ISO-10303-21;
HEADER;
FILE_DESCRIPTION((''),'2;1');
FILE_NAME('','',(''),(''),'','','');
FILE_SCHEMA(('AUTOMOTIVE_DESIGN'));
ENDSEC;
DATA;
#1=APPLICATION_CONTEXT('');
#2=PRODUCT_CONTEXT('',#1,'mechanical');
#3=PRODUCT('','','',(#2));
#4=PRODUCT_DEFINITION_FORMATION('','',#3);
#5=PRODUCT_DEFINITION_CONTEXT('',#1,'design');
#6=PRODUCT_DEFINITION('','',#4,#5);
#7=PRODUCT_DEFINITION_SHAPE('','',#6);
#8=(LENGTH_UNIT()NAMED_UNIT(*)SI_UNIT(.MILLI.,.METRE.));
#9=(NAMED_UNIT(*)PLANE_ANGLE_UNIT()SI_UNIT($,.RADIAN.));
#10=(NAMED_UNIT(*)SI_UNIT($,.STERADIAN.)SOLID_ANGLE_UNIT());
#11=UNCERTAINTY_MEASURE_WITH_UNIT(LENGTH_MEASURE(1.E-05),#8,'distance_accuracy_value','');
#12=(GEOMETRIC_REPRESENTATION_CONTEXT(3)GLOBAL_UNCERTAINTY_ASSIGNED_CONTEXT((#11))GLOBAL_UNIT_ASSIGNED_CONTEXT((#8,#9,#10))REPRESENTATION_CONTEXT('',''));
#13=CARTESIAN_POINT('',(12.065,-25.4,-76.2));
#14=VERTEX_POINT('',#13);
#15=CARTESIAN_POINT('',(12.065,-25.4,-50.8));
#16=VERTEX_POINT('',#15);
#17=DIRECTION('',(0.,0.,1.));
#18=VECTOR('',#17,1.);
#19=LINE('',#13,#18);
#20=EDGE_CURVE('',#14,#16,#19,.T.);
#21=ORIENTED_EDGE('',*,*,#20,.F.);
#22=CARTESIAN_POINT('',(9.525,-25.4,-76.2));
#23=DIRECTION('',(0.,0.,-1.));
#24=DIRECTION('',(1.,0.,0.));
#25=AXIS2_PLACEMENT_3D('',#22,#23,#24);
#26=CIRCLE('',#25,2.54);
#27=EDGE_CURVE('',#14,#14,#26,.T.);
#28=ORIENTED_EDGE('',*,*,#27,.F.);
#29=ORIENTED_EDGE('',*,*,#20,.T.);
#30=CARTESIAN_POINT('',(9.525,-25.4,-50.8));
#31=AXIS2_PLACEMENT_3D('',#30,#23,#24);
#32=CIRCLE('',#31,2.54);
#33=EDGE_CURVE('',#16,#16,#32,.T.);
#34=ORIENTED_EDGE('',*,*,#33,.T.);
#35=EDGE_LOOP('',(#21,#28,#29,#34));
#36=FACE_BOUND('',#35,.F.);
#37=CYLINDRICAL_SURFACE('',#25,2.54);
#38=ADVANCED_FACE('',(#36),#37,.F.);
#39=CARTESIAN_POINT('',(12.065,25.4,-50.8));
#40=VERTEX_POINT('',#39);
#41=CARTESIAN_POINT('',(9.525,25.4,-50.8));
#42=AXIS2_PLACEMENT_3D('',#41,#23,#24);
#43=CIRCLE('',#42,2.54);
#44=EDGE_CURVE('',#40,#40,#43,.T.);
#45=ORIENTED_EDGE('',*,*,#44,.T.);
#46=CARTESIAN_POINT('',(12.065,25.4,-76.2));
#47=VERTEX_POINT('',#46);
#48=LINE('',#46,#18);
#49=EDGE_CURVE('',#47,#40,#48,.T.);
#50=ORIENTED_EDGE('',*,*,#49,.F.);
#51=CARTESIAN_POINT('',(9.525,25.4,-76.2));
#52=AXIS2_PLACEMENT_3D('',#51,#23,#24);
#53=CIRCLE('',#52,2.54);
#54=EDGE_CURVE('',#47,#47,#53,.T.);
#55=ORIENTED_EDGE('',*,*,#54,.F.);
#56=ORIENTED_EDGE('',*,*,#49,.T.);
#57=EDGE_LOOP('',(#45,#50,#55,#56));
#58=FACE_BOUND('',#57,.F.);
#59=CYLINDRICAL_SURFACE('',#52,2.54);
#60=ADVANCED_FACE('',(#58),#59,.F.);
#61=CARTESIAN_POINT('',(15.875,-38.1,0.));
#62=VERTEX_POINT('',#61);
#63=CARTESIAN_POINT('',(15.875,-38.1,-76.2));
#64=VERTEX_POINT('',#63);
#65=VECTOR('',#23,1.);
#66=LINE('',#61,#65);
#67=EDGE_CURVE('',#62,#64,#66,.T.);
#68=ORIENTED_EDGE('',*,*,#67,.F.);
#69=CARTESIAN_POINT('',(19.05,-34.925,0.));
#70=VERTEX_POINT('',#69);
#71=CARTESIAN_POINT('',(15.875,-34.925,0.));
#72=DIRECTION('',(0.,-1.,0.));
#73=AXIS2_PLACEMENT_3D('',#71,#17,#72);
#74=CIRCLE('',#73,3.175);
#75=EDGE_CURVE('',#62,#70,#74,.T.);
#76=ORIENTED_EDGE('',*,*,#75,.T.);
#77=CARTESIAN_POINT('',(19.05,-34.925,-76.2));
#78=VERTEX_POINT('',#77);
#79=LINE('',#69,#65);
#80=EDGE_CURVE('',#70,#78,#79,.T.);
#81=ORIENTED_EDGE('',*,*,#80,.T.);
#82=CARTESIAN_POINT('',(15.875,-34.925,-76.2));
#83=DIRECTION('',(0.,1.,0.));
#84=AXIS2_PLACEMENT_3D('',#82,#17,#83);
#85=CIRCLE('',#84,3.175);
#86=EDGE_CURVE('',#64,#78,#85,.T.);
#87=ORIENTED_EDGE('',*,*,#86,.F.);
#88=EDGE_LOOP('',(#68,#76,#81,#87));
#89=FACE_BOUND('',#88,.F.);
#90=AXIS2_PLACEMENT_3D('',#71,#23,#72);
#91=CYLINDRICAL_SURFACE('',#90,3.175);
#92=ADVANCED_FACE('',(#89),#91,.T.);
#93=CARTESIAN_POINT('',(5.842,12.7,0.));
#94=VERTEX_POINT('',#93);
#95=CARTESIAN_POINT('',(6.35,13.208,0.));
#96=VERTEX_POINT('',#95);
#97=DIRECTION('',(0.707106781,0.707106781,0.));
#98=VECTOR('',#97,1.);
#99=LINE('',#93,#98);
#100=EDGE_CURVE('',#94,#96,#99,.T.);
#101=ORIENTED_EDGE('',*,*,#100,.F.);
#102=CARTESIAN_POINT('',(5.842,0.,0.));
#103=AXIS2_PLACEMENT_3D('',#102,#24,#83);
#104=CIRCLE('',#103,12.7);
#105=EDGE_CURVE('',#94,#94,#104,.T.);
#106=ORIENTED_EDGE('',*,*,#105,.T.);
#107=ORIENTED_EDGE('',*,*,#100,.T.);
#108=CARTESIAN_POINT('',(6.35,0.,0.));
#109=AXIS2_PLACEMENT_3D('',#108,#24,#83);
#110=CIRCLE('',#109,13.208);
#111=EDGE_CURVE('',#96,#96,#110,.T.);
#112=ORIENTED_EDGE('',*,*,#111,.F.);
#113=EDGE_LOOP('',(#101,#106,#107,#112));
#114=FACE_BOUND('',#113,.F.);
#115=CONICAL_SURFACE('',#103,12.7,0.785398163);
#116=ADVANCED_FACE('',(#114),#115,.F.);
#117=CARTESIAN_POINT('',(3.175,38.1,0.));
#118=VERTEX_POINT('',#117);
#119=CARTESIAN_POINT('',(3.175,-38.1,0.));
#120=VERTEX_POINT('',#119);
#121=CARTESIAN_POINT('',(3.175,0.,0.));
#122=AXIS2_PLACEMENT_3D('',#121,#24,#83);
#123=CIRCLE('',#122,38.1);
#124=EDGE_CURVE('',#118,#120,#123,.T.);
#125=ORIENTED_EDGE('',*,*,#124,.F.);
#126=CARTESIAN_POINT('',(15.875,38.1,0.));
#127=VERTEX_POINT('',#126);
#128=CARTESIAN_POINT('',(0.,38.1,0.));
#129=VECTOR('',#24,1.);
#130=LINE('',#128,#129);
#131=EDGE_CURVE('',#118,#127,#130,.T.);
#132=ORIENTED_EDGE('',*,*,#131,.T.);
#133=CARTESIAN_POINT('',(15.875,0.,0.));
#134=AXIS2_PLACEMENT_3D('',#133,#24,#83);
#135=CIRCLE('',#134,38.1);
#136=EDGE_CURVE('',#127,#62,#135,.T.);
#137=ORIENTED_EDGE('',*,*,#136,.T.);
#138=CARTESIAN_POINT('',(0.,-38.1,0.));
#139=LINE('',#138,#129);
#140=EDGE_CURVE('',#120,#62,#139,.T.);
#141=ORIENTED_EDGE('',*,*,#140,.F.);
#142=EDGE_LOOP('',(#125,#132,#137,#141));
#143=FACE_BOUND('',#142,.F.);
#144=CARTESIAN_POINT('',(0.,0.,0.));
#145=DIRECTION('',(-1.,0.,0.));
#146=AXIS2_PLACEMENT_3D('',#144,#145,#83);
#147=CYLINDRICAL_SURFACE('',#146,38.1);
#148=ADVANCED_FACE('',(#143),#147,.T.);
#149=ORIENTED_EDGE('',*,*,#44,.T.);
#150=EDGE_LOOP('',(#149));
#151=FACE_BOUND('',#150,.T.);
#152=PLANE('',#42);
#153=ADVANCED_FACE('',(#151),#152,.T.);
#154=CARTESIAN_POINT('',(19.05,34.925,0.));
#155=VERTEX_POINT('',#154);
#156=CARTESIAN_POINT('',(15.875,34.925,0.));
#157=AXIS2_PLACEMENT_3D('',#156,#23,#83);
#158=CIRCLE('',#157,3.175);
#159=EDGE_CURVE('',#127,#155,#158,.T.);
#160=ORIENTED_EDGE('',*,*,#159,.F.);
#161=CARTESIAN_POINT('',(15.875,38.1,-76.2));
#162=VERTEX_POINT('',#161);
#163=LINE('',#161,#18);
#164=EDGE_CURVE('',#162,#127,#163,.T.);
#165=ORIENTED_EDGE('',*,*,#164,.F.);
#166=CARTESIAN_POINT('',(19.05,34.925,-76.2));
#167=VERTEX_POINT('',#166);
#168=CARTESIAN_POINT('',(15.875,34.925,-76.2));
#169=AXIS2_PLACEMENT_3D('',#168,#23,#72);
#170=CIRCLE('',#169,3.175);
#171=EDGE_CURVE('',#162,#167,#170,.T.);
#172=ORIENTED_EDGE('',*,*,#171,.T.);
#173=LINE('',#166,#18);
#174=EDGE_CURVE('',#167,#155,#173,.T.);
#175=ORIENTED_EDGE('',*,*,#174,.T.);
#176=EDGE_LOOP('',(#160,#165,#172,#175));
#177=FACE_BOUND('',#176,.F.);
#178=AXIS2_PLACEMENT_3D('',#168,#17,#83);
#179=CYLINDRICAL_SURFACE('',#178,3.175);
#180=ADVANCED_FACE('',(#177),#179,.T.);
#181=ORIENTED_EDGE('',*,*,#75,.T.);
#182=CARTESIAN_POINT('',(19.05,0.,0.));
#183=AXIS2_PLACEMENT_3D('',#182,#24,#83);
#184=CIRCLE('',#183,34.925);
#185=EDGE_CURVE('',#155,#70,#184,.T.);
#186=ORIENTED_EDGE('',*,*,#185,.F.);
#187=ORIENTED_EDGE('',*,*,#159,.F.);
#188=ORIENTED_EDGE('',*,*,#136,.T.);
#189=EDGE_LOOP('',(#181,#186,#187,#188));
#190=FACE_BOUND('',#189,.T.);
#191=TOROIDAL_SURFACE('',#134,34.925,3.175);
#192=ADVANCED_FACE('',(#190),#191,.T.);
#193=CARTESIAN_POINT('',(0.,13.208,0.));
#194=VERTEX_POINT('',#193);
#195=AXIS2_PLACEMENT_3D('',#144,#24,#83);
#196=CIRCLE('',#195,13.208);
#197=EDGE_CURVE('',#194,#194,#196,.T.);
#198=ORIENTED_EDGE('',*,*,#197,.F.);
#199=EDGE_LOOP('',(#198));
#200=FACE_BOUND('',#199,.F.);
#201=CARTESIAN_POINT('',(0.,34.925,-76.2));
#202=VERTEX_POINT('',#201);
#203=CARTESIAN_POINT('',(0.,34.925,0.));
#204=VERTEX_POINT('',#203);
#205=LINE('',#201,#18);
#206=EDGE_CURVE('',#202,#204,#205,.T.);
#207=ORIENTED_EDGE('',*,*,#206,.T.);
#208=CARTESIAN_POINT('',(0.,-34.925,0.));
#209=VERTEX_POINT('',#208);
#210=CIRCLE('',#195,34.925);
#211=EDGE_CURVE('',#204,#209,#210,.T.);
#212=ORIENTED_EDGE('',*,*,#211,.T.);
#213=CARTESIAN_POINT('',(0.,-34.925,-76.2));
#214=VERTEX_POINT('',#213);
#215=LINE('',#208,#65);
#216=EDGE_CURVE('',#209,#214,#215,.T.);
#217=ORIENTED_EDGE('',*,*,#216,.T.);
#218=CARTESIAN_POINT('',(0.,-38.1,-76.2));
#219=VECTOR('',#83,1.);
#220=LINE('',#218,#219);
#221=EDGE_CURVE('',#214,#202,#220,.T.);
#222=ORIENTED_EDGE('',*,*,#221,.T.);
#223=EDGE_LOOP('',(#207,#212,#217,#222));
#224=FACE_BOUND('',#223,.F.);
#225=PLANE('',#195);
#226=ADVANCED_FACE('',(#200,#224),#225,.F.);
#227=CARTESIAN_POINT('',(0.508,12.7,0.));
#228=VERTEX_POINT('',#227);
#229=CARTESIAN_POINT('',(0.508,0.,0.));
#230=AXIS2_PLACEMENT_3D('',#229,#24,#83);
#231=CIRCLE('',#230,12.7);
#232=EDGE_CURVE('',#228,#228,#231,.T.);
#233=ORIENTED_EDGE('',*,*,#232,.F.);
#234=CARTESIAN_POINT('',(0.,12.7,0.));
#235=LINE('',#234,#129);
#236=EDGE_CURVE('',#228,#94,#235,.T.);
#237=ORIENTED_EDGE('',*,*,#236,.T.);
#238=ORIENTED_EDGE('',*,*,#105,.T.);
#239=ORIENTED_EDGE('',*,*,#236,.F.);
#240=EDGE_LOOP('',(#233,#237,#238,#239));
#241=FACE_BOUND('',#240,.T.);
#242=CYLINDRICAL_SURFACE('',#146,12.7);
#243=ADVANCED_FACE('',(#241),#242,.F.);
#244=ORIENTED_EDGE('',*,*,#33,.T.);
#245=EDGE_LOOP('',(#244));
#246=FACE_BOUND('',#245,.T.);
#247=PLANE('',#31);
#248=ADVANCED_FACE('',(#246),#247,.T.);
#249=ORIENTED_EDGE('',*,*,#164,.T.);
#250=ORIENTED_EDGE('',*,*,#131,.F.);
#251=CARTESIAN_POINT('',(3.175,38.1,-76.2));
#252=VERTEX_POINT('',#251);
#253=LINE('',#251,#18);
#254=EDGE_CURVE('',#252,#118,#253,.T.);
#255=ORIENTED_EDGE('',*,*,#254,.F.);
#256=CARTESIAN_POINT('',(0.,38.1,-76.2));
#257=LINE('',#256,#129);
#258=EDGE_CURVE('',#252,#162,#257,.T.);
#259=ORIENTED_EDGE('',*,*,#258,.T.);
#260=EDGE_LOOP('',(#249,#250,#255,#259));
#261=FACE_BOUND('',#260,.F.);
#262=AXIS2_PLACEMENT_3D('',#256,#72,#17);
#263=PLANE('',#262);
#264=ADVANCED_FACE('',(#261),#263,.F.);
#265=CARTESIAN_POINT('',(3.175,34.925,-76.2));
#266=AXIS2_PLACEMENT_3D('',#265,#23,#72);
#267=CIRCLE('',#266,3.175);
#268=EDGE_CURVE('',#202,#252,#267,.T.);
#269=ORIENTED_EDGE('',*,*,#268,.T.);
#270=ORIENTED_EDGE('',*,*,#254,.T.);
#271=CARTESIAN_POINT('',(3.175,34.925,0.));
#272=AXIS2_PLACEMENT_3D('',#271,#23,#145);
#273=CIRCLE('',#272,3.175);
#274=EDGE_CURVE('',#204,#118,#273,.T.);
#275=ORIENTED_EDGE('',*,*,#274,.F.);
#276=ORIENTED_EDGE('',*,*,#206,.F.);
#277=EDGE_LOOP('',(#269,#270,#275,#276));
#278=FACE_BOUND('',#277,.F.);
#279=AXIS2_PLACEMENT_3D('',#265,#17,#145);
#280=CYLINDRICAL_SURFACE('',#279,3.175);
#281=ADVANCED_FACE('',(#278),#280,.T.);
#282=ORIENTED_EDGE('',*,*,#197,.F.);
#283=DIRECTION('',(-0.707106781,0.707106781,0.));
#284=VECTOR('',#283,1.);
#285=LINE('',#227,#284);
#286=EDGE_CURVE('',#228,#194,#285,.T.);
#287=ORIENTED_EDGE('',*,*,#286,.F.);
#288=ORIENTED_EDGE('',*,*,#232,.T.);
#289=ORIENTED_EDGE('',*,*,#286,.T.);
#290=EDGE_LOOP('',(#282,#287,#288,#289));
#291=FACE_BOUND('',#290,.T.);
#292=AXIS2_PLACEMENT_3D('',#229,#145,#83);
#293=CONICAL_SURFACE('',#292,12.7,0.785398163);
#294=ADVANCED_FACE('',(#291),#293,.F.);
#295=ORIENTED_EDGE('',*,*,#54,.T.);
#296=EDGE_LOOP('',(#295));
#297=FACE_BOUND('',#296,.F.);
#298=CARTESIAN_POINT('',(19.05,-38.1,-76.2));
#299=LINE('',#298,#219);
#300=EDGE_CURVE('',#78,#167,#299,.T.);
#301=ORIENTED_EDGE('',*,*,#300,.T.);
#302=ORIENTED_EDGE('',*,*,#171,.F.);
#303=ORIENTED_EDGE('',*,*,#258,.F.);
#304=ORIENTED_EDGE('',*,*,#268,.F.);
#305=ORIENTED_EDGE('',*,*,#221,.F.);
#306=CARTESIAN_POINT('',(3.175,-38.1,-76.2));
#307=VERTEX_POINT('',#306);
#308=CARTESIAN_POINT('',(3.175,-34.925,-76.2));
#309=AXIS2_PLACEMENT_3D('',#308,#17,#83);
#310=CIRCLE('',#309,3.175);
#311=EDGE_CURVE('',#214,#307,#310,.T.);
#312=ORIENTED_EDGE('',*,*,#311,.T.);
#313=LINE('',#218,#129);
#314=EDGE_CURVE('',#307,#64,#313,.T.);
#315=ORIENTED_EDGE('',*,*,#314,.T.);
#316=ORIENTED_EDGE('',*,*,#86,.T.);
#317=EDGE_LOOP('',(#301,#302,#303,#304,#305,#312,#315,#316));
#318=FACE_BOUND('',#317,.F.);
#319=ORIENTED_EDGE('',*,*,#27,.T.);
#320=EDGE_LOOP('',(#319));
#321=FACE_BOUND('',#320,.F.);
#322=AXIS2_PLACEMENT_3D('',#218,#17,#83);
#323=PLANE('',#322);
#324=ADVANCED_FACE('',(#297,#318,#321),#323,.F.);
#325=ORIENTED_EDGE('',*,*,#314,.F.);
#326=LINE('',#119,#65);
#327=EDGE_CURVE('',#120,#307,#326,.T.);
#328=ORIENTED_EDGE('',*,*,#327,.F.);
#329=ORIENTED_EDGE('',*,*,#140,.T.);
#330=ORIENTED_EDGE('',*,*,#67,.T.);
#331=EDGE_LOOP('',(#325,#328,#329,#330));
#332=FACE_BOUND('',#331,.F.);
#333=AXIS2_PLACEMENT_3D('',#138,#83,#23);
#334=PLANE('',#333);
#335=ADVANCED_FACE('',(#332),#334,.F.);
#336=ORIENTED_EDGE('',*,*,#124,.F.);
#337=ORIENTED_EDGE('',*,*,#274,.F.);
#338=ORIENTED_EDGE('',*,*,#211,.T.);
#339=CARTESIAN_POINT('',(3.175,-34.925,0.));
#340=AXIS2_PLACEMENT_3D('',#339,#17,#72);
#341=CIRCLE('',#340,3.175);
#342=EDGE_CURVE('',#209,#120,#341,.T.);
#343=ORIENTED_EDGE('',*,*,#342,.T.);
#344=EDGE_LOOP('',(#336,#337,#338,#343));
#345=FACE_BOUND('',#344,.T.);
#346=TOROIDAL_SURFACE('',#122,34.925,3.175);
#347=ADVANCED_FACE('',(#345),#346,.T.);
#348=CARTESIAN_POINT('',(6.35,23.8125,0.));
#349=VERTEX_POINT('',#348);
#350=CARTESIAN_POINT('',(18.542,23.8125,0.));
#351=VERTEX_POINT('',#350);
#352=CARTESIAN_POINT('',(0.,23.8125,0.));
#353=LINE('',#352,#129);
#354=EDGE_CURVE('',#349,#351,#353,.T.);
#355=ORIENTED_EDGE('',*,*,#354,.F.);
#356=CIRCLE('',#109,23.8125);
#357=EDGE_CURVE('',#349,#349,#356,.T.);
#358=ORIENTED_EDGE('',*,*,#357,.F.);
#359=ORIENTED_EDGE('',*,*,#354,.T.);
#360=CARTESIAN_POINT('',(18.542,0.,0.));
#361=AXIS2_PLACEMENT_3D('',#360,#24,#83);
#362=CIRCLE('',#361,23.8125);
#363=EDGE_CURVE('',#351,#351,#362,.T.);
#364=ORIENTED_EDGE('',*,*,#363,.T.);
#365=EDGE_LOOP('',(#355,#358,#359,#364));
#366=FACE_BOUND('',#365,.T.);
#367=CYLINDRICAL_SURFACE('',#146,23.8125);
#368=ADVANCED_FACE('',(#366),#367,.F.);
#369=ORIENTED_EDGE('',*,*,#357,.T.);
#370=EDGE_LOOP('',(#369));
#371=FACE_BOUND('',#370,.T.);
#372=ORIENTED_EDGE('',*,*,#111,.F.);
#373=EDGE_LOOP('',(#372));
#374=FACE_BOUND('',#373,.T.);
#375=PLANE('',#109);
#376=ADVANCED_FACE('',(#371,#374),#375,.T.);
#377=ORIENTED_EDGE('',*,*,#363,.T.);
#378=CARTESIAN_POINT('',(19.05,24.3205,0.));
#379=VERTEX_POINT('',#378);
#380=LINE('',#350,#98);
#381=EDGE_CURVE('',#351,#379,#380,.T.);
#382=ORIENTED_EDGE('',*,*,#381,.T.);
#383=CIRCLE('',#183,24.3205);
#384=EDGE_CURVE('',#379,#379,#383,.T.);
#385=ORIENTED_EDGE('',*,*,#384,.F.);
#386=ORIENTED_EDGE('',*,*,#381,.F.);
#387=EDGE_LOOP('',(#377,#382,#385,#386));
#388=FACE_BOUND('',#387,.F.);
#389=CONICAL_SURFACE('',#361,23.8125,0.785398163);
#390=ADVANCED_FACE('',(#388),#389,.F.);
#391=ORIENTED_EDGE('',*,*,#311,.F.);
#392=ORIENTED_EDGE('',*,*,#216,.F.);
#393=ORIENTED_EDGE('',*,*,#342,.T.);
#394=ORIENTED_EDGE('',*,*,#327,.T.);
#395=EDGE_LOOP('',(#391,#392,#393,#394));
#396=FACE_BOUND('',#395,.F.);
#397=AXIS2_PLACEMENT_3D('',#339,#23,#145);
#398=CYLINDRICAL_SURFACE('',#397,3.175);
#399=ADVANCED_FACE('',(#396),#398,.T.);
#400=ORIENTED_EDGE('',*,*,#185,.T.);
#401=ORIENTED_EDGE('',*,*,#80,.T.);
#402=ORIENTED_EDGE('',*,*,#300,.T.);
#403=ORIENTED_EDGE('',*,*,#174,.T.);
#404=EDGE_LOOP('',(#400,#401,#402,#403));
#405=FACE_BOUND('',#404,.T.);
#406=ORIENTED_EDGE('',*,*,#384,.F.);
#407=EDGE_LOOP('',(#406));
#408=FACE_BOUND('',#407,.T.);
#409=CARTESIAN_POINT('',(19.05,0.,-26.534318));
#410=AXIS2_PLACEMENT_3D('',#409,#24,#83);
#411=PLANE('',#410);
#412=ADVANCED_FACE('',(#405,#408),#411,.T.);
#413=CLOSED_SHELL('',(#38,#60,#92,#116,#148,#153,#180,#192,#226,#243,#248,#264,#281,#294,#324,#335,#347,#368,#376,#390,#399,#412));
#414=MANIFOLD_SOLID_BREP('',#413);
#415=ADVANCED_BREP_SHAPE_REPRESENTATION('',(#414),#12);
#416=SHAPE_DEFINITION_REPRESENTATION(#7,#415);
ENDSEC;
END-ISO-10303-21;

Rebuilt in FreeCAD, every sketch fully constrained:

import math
import FreeCAD as App
import Part
import Sketcher
Q = App.Units.Quantity


def edges_at(feature, points):
    """Names of the edges that pass closest to the given points."""
    edges = feature.Shape.Edges
    near = lambda p: min(range(len(edges)), key=lambda i: edges[i].distToShape(Part.Vertex(*p))[0])
    return sorted({f"Edge{near(p) + 1}" for p in points})

doc = App.newDocument("Part")
body = doc.addObject("PartDesign::Body", "Body")

# Sketch on YZ plane
sketch1 = body.newObject("Sketcher::SketchObject", "Sketch")
sketch1.AttachmentSupport = (doc.getObject("YZ_Plane"), [""])
sketch1.MapMode = "FlatFace"
sketch1.addGeometry([
    Part.LineSegment(App.Vector(-38.1, -76.2, 0), App.Vector(38.1, -76.2, 0)),  # 0
    Part.LineSegment(App.Vector(38.1, -76.2, 0), App.Vector(38.1, 0, 0)),  # 1
    Part.ArcOfCircle(Part.Circle(App.Vector(0, 0, 0), App.Vector(0, 0, 1), 38.1), math.radians(0), math.radians(180)),  # 2
    Part.LineSegment(App.Vector(-38.1, 0, 0), App.Vector(-38.1, -76.2, 0)),  # 3
    Part.Circle(App.Vector(0, 0, 0), App.Vector(0, 0, 1), 23.8125),  # 4
], False)
sketch1.addConstraint([
    Sketcher.Constraint("Coincident", 0, 2, 1, 1),
    Sketcher.Constraint("Tangent", 1, 2, 2, 1),
    Sketcher.Constraint("Tangent", 2, 2, 3, 1),
    Sketcher.Constraint("Coincident", 3, 2, 0, 1),
    Sketcher.Constraint("Horizontal", 0),
    Sketcher.Constraint("Vertical", 1),
    Sketcher.Constraint("Vertical", 3),
    Sketcher.Constraint("Coincident", 2, 3, -1, 1),
    Sketcher.Constraint("Coincident", 4, 3, -1, 1),
    Sketcher.Constraint("Equal", 0, 1),
    Sketcher.Constraint("Radius", 2, Q("1.5 in")),
    Sketcher.Constraint("Diameter", 4, Q("1.875 in")),
])
pad1 = body.newObject("PartDesign::Pad", "Pad")
pad1.Profile = sketch1
pad1.Length = Q("0.75 in")

# Sketch on YZ plane
sketch2 = body.newObject("Sketcher::SketchObject", "Sketch001")
sketch2.AttachmentSupport = (doc.getObject("YZ_Plane"), [""])
sketch2.MapMode = "FlatFace"
sketch2.addGeometry([
    Part.Circle(App.Vector(0, 0, 0), App.Vector(0, 0, 1), 23.8125),
    Part.Circle(App.Vector(0, 0, 0), App.Vector(0, 0, 1), 12.7),
], False)
sketch2.addConstraint([
    Sketcher.Constraint("Coincident", 0, 3, -1, 1),
    Sketcher.Constraint("Coincident", 1, 3, -1, 1),
    Sketcher.Constraint("Diameter", 1, Q("1 in")),
    Sketcher.Constraint("Diameter", 0, Q("1.875 in")),
])
pad2 = body.newObject("PartDesign::Pad", "Pad001")
pad2.Profile = sketch2
pad2.Length = Q("0.25 in")
doc.recompute()

chamfer = body.newObject("PartDesign::Chamfer", "Chamfer")
chamfer.Base = (pad2, edges_at(pad2, [(0, -12.7, 0), (19.05, -23.812, 0), (6.35, -12.7, 0)]))
chamfer.Size = Q("0.02 in")

# Sketch on XY plane
sketch3 = body.newObject("Sketcher::SketchObject", "Sketch002")
sketch3.AttachmentSupport = (doc.getObject("XY_Plane"), [""])
sketch3.MapMode = "FlatFace"
sketch3.AttachmentOffset = App.Placement(App.Vector(0, 0, -3 * 25.4), App.Rotation())
sketch3.addGeometry([
    Part.Circle(App.Vector(9.525, -25.4, 0), App.Vector(0, 0, 1), 2.54),
    Part.Circle(App.Vector(9.525, 25.4, 0), App.Vector(0, 0, 1), 2.54),
], False)
sketch3.addConstraint([
    Sketcher.Constraint("Equal", 0, 1),
    Sketcher.Constraint("Symmetric", 0, 3, 1, 3, -1),
    Sketcher.Constraint("Diameter", 0, Q("0.2 in")),
    Sketcher.Constraint("DistanceY", 0, 3, -1, 1, Q("1 in")),
    Sketcher.Constraint("DistanceX", -1, 1, 0, 3, Q("0.375 in")),
])
pocket1 = body.newObject("PartDesign::Pocket", "Pocket")
pocket1.Profile = sketch3
pocket1.Length = Q("1 in")
pocket1.Reversed = True
doc.recompute()

fillet = body.newObject("PartDesign::Fillet", "Fillet")
fillet.Base = (pocket1, edges_at(pocket1, [(19.05, -38.1, -38.1), (0, -38.1, -38.1)]))
fillet.Radius = Q("0.125 in")

doc.recompute()
